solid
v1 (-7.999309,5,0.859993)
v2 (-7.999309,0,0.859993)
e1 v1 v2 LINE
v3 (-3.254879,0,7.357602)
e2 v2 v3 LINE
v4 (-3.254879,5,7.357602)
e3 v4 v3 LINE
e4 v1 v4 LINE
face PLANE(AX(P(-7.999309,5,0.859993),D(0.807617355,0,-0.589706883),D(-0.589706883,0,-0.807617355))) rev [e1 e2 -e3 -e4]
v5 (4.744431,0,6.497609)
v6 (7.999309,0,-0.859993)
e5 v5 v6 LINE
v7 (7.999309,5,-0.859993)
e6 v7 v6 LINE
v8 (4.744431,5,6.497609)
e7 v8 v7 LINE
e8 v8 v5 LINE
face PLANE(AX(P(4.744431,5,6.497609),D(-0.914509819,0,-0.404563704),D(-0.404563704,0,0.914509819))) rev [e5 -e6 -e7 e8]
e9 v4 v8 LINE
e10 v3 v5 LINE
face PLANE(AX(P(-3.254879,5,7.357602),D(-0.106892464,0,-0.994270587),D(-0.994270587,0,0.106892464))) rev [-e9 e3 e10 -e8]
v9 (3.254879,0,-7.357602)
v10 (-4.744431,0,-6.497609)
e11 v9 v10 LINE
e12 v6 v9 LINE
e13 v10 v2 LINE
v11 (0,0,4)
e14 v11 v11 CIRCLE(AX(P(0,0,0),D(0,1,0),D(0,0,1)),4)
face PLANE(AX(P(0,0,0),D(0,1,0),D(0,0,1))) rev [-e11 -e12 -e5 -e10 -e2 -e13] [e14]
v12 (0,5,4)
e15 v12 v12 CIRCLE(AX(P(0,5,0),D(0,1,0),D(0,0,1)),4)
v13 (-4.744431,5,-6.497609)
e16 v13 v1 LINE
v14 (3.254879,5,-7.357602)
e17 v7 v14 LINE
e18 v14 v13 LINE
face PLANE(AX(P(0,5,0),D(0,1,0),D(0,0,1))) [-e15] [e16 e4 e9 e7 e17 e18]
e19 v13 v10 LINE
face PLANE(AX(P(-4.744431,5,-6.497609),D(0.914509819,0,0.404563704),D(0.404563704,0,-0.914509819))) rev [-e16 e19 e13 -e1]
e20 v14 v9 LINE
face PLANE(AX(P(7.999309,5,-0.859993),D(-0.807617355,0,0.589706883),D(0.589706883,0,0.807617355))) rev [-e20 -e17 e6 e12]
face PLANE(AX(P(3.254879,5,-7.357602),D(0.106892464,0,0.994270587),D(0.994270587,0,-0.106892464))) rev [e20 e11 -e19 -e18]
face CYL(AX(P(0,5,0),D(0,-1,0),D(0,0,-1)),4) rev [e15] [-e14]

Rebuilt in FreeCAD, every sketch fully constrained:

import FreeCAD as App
import Part
import Sketcher
Q = App.Units.Quantity


def add_polygon(sketch, points):
    """Adds a closed chain of lines whose ends are joined by coincident constraints."""
    first, n = sketch.GeometryCount, len(points)
    for a, b in zip(points, points[1:] + points[:1]):
        sketch.addGeometry(Part.LineSegment(App.Vector(*a, 0), App.Vector(*b, 0)), False)
    for i in range(n):
        sketch.addConstraint(Sketcher.Constraint("Coincident", first + i, 2, first + (i + 1) % n, 1))

doc = App.newDocument("Part")
body = doc.addObject("PartDesign::Body", "Body")

# Sketch on XZ plane
sketch1 = body.newObject("Sketcher::SketchObject", "Sketch")
sketch1.AttachmentSupport = (doc.getObject("XZ_Plane"), [""])
sketch1.MapMode = "FlatFace"
add_polygon(sketch1, [(4.7, 6.5), (8, -0.9), (3.3, -7.4), (-4.7, -6.5), (-8, 0.9), (-3.3, 7.4)])  # lines 0-5
sketch1.addGeometry(Part.Circle(App.Vector(0, 0, 0), App.Vector(0, 0, 1), 4), False)  # 6
sketch1.addConstraint(Sketcher.Constraint("Coincident", 6, 3, -1, 1))
sketch1.addConstraint(Sketcher.Constraint("Symmetric", 0, 2, 3, 2, -1, 1))
sketch1.addConstraint(Sketcher.Constraint("Symmetric", 1, 2, 4, 2, -1, 1))
sketch1.addConstraint(Sketcher.Constraint("Symmetric", 2, 2, 5, 2, -1, 1))
sketch1.addConstraint(Sketcher.Constraint("Equal", 0, 1))
sketch1.addConstraint(Sketcher.Constraint("Equal", 1, 2))
sketch1.addConstraint(Sketcher.Constraint("Diameter", 6, Q("8 mm")))
sketch1.addConstraint(Sketcher.Constraint("DistanceY", 1, 2, -1, 1, Q("7.357602 mm")))
sketch1.addConstraint(Sketcher.Constraint("DistanceY", 2, 2, 3, 2, Q("7.357602 mm")))
sketch1.addConstraint(Sketcher.Constraint("DistanceX", -1, 1, 0, 2, Q("7.999309 mm")))
sketch1.addConstraint(Sketcher.Constraint("DistanceX", -1, 1, 1, 2, Q("3.254879 mm")))
pad1 = body.newObject("PartDesign::Pad", "Pad")
pad1.Profile = sketch1
pad1.Length = 5
pad1.Reversed = True

doc.recompute()
